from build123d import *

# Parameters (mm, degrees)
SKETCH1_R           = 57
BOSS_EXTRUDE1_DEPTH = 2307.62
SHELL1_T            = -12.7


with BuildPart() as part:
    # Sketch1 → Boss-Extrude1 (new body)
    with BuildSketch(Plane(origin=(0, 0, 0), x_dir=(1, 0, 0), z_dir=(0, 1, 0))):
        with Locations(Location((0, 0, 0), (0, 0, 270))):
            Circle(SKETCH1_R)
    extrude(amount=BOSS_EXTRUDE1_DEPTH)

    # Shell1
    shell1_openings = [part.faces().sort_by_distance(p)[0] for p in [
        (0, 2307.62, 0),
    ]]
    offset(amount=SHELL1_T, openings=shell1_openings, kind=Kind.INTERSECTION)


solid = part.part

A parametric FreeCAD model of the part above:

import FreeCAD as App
import Part
import Sketcher

V = App.Vector
Q = App.Units.Quantity


def faces_at(feature, points):
    """Names of the faces that lie closest to the given points."""
    faces = feature.Shape.Faces
    near = lambda p: min(range(len(faces)), key=lambda i: faces[i].distToShape(Part.Vertex(*p))[0])
    return sorted({f"Face{near(p) + 1}" for p in points})

doc = App.newDocument("Part")
params = doc.addObject("Spreadsheet::Sheet", "Params")
for row, (alias, value) in enumerate([
    ("sketch1_diameter", "114 mm"),
    ("pad1_length", "2307.62 mm"),
    ("thickness_wall", "12.7 mm"),
], start=1):
    params.set(f"A{row}", alias)
    params.set(f"B{row}", "=" + value)
    params.setAlias(f"B{row}", alias)

body = doc.addObject("PartDesign::Body", "Body")

# Sketch on XZ plane
sketch1 = body.newObject("Sketcher::SketchObject", "Sketch")
sketch1.AttachmentSupport = (doc.getObject("XZ_Plane"), [""])
sketch1.MapMode = "FlatFace"
sketch1.addGeometry(Part.Circle(V(0, 0, 0), V(0, 0, 1), 57), False)
sketch1.addConstraint(Sketcher.Constraint("Coincident", 0, 3, -1, 1))
sketch1.addConstraint(Sketcher.Constraint("Diameter", 0, Q("114 mm")))
sketch1.setExpression("Constraints[1]", "Params.sketch1_diameter")
pad1 = body.newObject("PartDesign::Pad", "Pad")
pad1.Profile = sketch1
pad1.setExpression("Length", "Params.pad1_length")
pad1.Reversed = True
doc.recompute()

thickness = body.newObject("PartDesign::Thickness", "Thickness")
thickness.Base = (pad1, faces_at(pad1, [(0, 2307.62, 0)]))
thickness.setExpression("Value", "Params.thickness_wall")
thickness.Reversed = True
thickness.Join = "Intersection"

doc.recompute()
